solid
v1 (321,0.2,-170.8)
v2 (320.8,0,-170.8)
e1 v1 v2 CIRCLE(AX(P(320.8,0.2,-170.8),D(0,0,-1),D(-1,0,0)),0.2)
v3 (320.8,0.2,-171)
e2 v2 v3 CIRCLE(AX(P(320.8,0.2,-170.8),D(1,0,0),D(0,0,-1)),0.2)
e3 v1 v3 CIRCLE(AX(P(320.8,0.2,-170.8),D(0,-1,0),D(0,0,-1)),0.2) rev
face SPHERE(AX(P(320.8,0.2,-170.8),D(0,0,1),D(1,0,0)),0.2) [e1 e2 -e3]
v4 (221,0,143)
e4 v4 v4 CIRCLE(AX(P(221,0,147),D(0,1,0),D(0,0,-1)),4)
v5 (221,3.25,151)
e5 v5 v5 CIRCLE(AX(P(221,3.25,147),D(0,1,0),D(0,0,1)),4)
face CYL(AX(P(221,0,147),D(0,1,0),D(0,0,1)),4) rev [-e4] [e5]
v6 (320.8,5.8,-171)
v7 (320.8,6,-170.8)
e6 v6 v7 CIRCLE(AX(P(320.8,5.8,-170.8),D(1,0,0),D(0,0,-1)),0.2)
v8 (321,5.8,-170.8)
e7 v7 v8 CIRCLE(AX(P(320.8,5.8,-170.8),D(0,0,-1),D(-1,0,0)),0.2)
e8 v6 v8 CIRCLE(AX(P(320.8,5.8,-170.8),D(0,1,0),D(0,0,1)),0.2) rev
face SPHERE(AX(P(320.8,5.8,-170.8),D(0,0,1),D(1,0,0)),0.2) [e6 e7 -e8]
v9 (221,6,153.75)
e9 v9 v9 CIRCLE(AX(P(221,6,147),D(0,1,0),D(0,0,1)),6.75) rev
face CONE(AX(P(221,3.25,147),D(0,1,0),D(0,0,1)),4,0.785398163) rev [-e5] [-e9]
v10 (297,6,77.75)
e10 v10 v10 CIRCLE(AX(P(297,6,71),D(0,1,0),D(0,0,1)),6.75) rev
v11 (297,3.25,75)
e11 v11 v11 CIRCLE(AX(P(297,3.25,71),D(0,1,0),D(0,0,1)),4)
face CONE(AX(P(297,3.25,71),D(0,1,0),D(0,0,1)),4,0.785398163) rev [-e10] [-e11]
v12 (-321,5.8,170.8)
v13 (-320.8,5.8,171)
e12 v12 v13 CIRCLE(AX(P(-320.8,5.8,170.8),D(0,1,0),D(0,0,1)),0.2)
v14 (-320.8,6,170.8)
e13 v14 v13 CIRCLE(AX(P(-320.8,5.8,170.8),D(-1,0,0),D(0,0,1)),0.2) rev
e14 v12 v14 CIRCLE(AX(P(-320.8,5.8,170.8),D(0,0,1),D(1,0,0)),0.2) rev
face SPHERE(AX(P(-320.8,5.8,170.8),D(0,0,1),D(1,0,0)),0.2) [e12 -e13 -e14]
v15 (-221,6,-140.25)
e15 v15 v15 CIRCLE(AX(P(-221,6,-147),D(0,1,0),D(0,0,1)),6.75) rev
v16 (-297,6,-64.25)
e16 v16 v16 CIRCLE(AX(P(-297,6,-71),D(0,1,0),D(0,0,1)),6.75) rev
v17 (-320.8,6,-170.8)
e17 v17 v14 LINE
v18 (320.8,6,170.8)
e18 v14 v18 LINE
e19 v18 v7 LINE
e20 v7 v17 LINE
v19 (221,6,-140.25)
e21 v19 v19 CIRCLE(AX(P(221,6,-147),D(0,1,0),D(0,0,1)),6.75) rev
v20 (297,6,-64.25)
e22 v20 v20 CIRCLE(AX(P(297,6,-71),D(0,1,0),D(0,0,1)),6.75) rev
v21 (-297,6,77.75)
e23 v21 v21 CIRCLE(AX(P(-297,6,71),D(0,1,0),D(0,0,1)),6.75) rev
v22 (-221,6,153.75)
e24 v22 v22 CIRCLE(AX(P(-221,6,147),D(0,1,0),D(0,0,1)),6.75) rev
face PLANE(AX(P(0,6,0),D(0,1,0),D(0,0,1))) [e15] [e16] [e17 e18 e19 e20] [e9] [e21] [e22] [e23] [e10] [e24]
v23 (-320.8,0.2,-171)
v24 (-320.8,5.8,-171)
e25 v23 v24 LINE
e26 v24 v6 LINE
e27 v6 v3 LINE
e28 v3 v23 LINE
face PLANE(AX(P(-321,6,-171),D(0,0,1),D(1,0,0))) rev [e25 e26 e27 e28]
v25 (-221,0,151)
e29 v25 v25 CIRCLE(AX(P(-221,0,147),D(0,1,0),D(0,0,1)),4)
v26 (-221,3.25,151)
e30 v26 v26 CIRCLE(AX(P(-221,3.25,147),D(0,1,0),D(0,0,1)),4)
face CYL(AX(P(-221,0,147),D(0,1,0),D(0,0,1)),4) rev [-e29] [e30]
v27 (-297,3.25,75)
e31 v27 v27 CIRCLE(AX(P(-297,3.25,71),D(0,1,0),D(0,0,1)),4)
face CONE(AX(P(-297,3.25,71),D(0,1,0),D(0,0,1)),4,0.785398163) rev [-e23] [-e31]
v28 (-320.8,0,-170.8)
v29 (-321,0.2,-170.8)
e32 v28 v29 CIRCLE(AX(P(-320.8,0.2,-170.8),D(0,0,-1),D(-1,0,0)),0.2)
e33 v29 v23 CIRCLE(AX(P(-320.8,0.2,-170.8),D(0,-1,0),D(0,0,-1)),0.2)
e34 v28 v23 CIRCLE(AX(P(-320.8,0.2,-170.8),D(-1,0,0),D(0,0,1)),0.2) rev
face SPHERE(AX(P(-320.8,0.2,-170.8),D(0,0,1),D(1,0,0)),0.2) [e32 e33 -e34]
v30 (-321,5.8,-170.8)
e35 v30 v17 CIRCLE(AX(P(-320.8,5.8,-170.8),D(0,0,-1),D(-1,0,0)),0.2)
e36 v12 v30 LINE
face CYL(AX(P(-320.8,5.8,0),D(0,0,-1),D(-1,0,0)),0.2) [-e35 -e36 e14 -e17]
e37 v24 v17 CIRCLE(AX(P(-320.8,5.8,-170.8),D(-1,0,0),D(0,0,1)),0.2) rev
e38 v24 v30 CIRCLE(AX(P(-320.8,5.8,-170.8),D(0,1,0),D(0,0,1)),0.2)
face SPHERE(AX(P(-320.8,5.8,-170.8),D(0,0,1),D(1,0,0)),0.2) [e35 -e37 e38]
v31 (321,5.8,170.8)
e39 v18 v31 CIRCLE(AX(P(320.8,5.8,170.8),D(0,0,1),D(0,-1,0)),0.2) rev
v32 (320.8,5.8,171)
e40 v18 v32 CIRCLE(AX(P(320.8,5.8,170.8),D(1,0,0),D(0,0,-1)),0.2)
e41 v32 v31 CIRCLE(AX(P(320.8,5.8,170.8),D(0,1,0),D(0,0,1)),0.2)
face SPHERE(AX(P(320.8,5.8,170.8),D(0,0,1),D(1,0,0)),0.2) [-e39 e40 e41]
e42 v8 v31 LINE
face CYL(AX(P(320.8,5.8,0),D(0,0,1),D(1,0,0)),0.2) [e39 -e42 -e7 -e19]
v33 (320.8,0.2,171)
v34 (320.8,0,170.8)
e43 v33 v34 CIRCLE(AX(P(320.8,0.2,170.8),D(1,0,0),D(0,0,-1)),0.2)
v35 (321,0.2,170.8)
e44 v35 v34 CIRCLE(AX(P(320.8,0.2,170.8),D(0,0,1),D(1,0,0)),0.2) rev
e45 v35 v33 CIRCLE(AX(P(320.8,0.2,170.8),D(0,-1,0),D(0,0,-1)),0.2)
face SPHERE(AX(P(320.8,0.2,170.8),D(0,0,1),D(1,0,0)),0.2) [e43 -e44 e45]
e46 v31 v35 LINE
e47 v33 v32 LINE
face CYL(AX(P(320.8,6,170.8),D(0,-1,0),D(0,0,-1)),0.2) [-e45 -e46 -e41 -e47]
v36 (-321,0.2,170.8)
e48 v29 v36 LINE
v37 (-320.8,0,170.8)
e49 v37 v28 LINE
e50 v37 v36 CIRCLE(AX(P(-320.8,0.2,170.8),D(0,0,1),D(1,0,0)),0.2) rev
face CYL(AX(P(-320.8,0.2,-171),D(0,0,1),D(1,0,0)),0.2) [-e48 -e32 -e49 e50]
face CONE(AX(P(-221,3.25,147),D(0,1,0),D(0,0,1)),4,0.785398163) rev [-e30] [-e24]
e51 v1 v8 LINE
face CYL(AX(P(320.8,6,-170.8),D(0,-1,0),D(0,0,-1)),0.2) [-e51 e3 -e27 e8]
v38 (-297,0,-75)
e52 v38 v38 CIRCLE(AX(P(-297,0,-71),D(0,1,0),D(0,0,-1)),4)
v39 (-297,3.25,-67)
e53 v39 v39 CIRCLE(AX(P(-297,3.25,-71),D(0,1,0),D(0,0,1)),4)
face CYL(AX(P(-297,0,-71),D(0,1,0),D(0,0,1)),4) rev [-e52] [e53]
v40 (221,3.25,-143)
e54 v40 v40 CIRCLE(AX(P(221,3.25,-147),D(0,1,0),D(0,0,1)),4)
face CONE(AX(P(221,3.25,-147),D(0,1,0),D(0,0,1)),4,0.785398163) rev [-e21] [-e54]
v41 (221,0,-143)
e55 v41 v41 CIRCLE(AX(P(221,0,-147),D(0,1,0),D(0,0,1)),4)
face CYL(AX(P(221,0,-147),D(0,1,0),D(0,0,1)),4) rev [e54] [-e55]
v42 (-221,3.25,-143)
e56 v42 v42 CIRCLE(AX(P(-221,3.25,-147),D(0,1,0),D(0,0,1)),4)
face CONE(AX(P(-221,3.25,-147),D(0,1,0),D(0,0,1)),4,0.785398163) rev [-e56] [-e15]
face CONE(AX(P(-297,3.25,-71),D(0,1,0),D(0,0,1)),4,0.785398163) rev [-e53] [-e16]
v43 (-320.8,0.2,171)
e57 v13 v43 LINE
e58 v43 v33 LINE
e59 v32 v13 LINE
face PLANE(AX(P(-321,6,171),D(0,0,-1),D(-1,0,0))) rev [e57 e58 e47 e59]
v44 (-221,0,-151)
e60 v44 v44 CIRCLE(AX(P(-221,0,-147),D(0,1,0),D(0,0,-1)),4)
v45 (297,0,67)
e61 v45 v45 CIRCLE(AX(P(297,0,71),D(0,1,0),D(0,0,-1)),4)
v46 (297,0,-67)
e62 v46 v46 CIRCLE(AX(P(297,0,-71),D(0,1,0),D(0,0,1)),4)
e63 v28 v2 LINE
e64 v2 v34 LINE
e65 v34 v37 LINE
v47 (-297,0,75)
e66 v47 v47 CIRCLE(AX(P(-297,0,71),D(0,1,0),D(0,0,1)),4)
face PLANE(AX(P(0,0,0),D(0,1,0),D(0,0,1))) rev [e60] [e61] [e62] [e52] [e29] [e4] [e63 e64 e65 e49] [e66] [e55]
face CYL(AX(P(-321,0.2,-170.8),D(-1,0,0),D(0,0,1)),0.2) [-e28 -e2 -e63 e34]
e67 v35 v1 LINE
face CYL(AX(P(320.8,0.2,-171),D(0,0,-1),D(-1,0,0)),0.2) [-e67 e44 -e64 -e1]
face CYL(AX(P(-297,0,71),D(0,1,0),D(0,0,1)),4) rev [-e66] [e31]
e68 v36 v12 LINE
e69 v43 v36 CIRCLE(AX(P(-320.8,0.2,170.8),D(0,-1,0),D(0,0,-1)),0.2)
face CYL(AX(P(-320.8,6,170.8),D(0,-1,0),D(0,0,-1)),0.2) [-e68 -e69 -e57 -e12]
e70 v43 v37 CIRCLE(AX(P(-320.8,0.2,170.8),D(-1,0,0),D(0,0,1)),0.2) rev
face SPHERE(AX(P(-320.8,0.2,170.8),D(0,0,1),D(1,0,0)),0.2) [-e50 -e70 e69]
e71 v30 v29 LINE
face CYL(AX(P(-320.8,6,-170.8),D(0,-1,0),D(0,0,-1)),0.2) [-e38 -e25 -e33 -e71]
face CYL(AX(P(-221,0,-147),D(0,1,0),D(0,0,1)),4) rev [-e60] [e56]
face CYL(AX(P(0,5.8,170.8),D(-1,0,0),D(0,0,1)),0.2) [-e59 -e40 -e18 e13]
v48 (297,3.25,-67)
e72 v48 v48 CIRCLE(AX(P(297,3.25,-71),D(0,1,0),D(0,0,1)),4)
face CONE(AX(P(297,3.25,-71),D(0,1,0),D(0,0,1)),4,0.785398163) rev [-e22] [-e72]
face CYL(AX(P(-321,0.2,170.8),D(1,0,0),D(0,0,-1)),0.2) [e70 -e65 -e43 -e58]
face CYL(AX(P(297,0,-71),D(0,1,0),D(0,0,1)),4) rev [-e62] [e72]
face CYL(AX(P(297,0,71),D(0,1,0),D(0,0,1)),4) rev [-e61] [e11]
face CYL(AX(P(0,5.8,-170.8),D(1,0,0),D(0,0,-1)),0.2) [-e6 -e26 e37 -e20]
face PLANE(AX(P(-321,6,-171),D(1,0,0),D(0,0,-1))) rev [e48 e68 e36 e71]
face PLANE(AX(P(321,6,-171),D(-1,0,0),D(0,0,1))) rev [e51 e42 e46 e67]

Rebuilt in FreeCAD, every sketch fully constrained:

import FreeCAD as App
import Part
import Sketcher
Q = App.Units.Quantity


def edges_at(feature, points):
    """Names of the edges that pass closest to the given points."""
    edges = feature.Shape.Edges
    near = lambda p: min(range(len(edges)), key=lambda i: edges[i].distToShape(Part.Vertex(*p))[0])
    return sorted({f"Edge{near(p) + 1}" for p in points})

doc = App.newDocument("Part")
body = doc.addObject("PartDesign::Body", "Body")

sketch1 = doc.addObject("Sketcher::SketchObject", "Sketch")
body.addObject(sketch1)
sketch1.AttachmentSupport = (doc.XZ_Plane, [""])
sketch1.MapMode = "FlatFace"
sketch1.addGeometry([
    Part.LineSegment(App.Vector(-321, -171, 0), App.Vector(-321, 171, 0)),
    Part.LineSegment(App.Vector(-321, 171, 0), App.Vector(321, 171, 0)),
    Part.LineSegment(App.Vector(321, 171, 0), App.Vector(321, -171, 0)),
    Part.LineSegment(App.Vector(321, -171, 0), App.Vector(-321, -171, 0)),
], False)
sketch1.addConstraint([
    Sketcher.Constraint("Coincident", 0, 2, 1, 1),
    Sketcher.Constraint("Coincident", 1, 2, 2, 1),
    Sketcher.Constraint("Coincident", 2, 2, 3, 1),
    Sketcher.Constraint("Coincident", 3, 2, 0, 1),
    Sketcher.Constraint("Vertical", 0),
    Sketcher.Constraint("Horizontal", 1),
    Sketcher.Constraint("Vertical", 2),
    Sketcher.Constraint("Horizontal", 3),
    Sketcher.Constraint("Symmetric", 0, 2, 2, 2, -1, 1),
    Sketcher.Constraint("DistanceX", 1, 1, 1, 2, Q("642 mm")),
    Sketcher.Constraint("DistanceY", 0, 1, 0, 2, Q("342 mm")),
])
pad1 = doc.addObject("PartDesign::Pad", "Pad")
body.addObject(pad1)
pad1.Profile = sketch1
pad1.Length = 6
pad1.Reversed = True

sketch2 = doc.addObject("Sketcher::SketchObject", "Sketch001")
body.addObject(sketch2)
sketch2.AttachmentSupport = (doc.XZ_Plane, [""])
sketch2.MapMode = "FlatFace"
sketch2.AttachmentOffset = App.Placement(App.Vector(0, 0, -6), App.Rotation())
sketch2.addGeometry([
    Part.Circle(App.Vector(-221, 147, 0), App.Vector(0, 0, 1), 4),
    Part.Circle(App.Vector(221, 147, 0), App.Vector(0, 0, 1), 4),
    Part.Circle(App.Vector(-297, 71, 0), App.Vector(0, 0, 1), 4),
    Part.Circle(App.Vector(297, 71, 0), App.Vector(0, 0, 1), 4),
    Part.Circle(App.Vector(297, -71, 0), App.Vector(0, 0, 1), 4),
    Part.Circle(App.Vector(221, -147, 0), App.Vector(0, 0, 1), 4),
    Part.Circle(App.Vector(-221, -147, 0), App.Vector(0, 0, 1), 4),
    Part.Circle(App.Vector(-297, -71, 0), App.Vector(0, 0, 1), 4),
], False)
sketch2.addConstraint([
    Sketcher.Constraint("Equal", 0, 1),
    Sketcher.Constraint("Equal", 1, 2),
    Sketcher.Constraint("Equal", 2, 3),
    Sketcher.Constraint("Equal", 3, 4),
    Sketcher.Constraint("Equal", 4, 5),
    Sketcher.Constraint("Equal", 5, 6),
    Sketcher.Constraint("Equal", 6, 7),
    Sketcher.Constraint("Symmetric", 2, 3, 4, 3, -1, 1),
    Sketcher.Constraint("Symmetric", 0, 3, 5, 3, -1, 1),
    Sketcher.Constraint("Symmetric", 1, 3, 6, 3, -1, 1),
    Sketcher.Constraint("Symmetric", 3, 3, 7, 3, -1, 1),
    Sketcher.Constraint("Symmetric", 0, 3, 1, 3, -2),
    Sketcher.Constraint("Symmetric", 2, 3, 3, 3, -2),
    Sketcher.Constraint("Diameter", 0, Q("8 mm")),
    Sketcher.Constraint("DistanceX", 0, 3, -1, 1, Q("221 mm")),
    Sketcher.Constraint("DistanceY", -1, 1, 0, 3, Q("147 mm")),
    Sketcher.Constraint("DistanceX", 2, 3, -1, 1, Q("297 mm")),
    Sketcher.Constraint("DistanceY", -1, 1, 2, 3, Q("71 mm")),
])
pocket1 = doc.addObject("PartDesign::Pocket", "Pocket")
body.addObject(pocket1)
pocket1.Profile = sketch2
pocket1.Type = "ThroughAll"
pocket1.Reversed = True
doc.recompute()

chamfer = doc.addObject("PartDesign::Chamfer", "Chamfer")
body.addObject(chamfer)
chamfer.Base = (pocket1, edges_at(pocket1, [
    (-225, 6, 147),
    (217, 6, 147),
    (-301, 6, 71),
    (293, 6, 71),
    (293, 6, -71),
    (217, 6, -147),
    (-225, 6, -147),
    (-301, 6, -71),
]))
chamfer.Size = 2.75
doc.recompute()

fillet = doc.addObject("PartDesign::Fillet", "Fillet")
body.addObject(fillet)
fillet.Base = (chamfer, edges_at(chamfer, [
    (-321, 6, 0),
    (0, 6, 171),
    (321, 6, 0),
    (0, 0, 171),
    (-321, 0, 0),
    (0, 0, -171),
    (321, 0, 0),
    (0, 6, -171),
    (321, 3, 171),
    (-321, 3, 171),
    (-321, 3, -171),
    (321, 3, -171),
]))
fillet.Radius = 0.2

doc.recompute()
